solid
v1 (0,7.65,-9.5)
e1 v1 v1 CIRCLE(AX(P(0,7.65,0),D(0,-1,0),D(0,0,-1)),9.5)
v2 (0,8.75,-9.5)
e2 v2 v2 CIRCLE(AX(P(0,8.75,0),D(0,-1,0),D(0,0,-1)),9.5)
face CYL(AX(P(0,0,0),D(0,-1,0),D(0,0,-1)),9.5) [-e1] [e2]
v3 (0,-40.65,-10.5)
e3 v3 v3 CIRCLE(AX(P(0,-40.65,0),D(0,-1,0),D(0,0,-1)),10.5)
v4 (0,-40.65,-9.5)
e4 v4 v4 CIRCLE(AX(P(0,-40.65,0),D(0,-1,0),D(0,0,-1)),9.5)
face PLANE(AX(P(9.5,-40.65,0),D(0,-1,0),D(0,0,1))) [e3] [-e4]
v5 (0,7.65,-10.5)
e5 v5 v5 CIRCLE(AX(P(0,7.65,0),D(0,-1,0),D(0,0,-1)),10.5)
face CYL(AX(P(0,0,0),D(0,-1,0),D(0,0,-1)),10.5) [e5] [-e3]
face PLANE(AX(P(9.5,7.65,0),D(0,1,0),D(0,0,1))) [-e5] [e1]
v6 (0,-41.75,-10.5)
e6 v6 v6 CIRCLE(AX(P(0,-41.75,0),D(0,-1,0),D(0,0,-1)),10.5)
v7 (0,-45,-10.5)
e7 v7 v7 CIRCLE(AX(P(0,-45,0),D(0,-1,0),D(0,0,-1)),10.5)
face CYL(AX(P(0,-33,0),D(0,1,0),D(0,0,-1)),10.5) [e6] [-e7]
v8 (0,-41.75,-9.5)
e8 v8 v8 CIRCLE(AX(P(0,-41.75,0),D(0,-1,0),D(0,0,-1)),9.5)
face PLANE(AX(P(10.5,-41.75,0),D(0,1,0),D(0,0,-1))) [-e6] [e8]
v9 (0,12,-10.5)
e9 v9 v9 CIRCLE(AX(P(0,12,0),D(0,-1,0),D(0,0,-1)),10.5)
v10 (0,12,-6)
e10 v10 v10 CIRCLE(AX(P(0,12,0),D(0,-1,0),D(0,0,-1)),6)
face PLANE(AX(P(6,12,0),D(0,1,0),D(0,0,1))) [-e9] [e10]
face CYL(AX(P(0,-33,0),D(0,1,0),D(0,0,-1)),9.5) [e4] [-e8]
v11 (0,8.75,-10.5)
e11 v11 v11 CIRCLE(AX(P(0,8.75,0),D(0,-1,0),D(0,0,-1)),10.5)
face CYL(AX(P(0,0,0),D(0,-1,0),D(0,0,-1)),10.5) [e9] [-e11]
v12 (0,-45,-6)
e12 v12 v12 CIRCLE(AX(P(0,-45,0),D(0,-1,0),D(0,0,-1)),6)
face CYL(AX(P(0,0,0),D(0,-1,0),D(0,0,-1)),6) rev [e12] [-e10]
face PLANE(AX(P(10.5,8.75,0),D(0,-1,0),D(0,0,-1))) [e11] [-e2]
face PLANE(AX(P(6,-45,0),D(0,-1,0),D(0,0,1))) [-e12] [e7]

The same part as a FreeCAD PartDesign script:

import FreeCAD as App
import Part
import Sketcher
from FreeCAD import Vector

doc = App.newDocument("Part")
params = doc.addObject("Spreadsheet::Sheet", "Params")
for row, (alias, value) in enumerate([
    ("sketch1_width", "1 mm"),
    ("sketch1_width2", "4.5 mm"),
    ("sketch1_height", "28.5 mm"),
    ("sketch1_height2", "1.1 mm"),
    ("sketch1_height3", "24.15 mm"),
    ("revolution_angle", "360 deg"),
], start=1):
    params.set(f"A{row}", alias)
    params.set(f"B{row}", "=" + value)
    params.setAlias(f"B{row}", alias)

body = doc.addObject("PartDesign::Body", "Body")

# Sketch on XY plane
sketch1 = doc.addObject("Sketcher::SketchObject", "Sketch")
body.addObject(sketch1)
sketch1.AttachmentSupport = (doc.XY_Plane, [""])
sketch1.MapMode = "FlatFace"
sketch1.addGeometry(Part.LineSegment(Vector(6, 12, 0), Vector(6, -16.5, 0)), False)
sketch1.addGeometry(Part.LineSegment(Vector(6, -16.5, 0), Vector(10.5, -16.5, 0)), False)
sketch1.addGeometry(Part.LineSegment(Vector(10.5, -16.5, 0), Vector(10.5, 7.65, 0)), False)
sketch1.addGeometry(Part.LineSegment(Vector(10.5, 7.65, 0), Vector(9.5, 7.65, 0)), False)
sketch1.addGeometry(Part.LineSegment(Vector(9.5, 7.65, 0), Vector(9.5, 8.75, 0)), False)
sketch1.addGeometry(Part.LineSegment(Vector(9.5, 8.75, 0), Vector(10.5, 8.75, 0)), False)
sketch1.addGeometry(Part.LineSegment(Vector(10.5, 8.75, 0), Vector(10.5, 12, 0)), False)
sketch1.addGeometry(Part.LineSegment(Vector(10.5, 12, 0), Vector(6, 12, 0)), False)
sketch1.addConstraint(Sketcher.Constraint("Coincident", 0, 2, 1, 1))
sketch1.addConstraint(Sketcher.Constraint("Coincident", 1, 2, 2, 1))
sketch1.addConstraint(Sketcher.Constraint("Coincident", 2, 2, 3, 1))
sketch1.addConstraint(Sketcher.Constraint("Coincident", 3, 2, 4, 1))
sketch1.addConstraint(Sketcher.Constraint("Coincident", 4, 2, 5, 1))
sketch1.addConstraint(Sketcher.Constraint("Coincident", 5, 2, 6, 1))
sketch1.addConstraint(Sketcher.Constraint("Coincident", 6, 2, 7, 1))
sketch1.addConstraint(Sketcher.Constraint("Coincident", 7, 2, 0, 1))
sketch1.addConstraint(Sketcher.Constraint("Vertical", 0))
sketch1.addConstraint(Sketcher.Constraint("Horizontal", 1))
sketch1.addConstraint(Sketcher.Constraint("Vertical", 2))
sketch1.addConstraint(Sketcher.Constraint("Horizontal", 3))
sketch1.addConstraint(Sketcher.Constraint("Vertical", 4))
sketch1.addConstraint(Sketcher.Constraint("Horizontal", 5))
sketch1.addConstraint(Sketcher.Constraint("Vertical", 6))
sketch1.addConstraint(Sketcher.Constraint("Horizontal", 7))
sketch1.addConstraint(Sketcher.Constraint("Vertical", 2, 2, 5, 2))
sketch1.addConstraint(Sketcher.Constraint("DistanceX", 3, 2, 3, 1, 1.0))
sketch1.addConstraint(Sketcher.Constraint("DistanceX", 1, 1, 1, 2, 4.5))
sketch1.addConstraint(Sketcher.Constraint("DistanceY", 0, 2, 0, 1, 28.5))
sketch1.addConstraint(Sketcher.Constraint("DistanceY", 4, 1, 4, 2, 1.1))
sketch1.addConstraint(Sketcher.Constraint("DistanceX", -1, 1, 0, 2, 6.0))
sketch1.addConstraint(Sketcher.Constraint("DistanceY", -1, 1, 6, 2, 12.0))
sketch1.addConstraint(Sketcher.Constraint("DistanceY", 2, 1, 2, 2, 24.15))
sketch1.setExpression("Constraints[17]", "Params.sketch1_width")
sketch1.setExpression("Constraints[18]", "Params.sketch1_width2")
sketch1.setExpression("Constraints[19]", "Params.sketch1_height")
sketch1.setExpression("Constraints[20]", "Params.sketch1_height2")
sketch1.setExpression("Constraints[23]", "Params.sketch1_height3")
revolution = doc.addObject("PartDesign::Revolution", "Revolution")
body.addObject(revolution)
revolution.Profile = sketch1
revolution.ReferenceAxis = (sketch1, ["V_Axis"])
revolution.setExpression("Angle", "Params.revolution_angle")
doc.recompute()

datumplane = doc.addObject("PartDesign::Plane", "DatumPlane")
body.addObject(datumplane)
datumplane.AttachmentSupport = (doc.XZ_Plane, [""])
datumplane.MapMode = "FlatFace"
datumplane.AttachmentOffset = App.Placement(Vector(0, 0, 16.5), App.Rotation())
mirrored = doc.addObject("PartDesign::Mirrored", "Mirrored")
body.addObject(mirrored)
mirrored.Originals = [revolution]
mirrored.MirrorPlane = (datumplane, [""])
body.Tip = mirrored

doc.recompute()
